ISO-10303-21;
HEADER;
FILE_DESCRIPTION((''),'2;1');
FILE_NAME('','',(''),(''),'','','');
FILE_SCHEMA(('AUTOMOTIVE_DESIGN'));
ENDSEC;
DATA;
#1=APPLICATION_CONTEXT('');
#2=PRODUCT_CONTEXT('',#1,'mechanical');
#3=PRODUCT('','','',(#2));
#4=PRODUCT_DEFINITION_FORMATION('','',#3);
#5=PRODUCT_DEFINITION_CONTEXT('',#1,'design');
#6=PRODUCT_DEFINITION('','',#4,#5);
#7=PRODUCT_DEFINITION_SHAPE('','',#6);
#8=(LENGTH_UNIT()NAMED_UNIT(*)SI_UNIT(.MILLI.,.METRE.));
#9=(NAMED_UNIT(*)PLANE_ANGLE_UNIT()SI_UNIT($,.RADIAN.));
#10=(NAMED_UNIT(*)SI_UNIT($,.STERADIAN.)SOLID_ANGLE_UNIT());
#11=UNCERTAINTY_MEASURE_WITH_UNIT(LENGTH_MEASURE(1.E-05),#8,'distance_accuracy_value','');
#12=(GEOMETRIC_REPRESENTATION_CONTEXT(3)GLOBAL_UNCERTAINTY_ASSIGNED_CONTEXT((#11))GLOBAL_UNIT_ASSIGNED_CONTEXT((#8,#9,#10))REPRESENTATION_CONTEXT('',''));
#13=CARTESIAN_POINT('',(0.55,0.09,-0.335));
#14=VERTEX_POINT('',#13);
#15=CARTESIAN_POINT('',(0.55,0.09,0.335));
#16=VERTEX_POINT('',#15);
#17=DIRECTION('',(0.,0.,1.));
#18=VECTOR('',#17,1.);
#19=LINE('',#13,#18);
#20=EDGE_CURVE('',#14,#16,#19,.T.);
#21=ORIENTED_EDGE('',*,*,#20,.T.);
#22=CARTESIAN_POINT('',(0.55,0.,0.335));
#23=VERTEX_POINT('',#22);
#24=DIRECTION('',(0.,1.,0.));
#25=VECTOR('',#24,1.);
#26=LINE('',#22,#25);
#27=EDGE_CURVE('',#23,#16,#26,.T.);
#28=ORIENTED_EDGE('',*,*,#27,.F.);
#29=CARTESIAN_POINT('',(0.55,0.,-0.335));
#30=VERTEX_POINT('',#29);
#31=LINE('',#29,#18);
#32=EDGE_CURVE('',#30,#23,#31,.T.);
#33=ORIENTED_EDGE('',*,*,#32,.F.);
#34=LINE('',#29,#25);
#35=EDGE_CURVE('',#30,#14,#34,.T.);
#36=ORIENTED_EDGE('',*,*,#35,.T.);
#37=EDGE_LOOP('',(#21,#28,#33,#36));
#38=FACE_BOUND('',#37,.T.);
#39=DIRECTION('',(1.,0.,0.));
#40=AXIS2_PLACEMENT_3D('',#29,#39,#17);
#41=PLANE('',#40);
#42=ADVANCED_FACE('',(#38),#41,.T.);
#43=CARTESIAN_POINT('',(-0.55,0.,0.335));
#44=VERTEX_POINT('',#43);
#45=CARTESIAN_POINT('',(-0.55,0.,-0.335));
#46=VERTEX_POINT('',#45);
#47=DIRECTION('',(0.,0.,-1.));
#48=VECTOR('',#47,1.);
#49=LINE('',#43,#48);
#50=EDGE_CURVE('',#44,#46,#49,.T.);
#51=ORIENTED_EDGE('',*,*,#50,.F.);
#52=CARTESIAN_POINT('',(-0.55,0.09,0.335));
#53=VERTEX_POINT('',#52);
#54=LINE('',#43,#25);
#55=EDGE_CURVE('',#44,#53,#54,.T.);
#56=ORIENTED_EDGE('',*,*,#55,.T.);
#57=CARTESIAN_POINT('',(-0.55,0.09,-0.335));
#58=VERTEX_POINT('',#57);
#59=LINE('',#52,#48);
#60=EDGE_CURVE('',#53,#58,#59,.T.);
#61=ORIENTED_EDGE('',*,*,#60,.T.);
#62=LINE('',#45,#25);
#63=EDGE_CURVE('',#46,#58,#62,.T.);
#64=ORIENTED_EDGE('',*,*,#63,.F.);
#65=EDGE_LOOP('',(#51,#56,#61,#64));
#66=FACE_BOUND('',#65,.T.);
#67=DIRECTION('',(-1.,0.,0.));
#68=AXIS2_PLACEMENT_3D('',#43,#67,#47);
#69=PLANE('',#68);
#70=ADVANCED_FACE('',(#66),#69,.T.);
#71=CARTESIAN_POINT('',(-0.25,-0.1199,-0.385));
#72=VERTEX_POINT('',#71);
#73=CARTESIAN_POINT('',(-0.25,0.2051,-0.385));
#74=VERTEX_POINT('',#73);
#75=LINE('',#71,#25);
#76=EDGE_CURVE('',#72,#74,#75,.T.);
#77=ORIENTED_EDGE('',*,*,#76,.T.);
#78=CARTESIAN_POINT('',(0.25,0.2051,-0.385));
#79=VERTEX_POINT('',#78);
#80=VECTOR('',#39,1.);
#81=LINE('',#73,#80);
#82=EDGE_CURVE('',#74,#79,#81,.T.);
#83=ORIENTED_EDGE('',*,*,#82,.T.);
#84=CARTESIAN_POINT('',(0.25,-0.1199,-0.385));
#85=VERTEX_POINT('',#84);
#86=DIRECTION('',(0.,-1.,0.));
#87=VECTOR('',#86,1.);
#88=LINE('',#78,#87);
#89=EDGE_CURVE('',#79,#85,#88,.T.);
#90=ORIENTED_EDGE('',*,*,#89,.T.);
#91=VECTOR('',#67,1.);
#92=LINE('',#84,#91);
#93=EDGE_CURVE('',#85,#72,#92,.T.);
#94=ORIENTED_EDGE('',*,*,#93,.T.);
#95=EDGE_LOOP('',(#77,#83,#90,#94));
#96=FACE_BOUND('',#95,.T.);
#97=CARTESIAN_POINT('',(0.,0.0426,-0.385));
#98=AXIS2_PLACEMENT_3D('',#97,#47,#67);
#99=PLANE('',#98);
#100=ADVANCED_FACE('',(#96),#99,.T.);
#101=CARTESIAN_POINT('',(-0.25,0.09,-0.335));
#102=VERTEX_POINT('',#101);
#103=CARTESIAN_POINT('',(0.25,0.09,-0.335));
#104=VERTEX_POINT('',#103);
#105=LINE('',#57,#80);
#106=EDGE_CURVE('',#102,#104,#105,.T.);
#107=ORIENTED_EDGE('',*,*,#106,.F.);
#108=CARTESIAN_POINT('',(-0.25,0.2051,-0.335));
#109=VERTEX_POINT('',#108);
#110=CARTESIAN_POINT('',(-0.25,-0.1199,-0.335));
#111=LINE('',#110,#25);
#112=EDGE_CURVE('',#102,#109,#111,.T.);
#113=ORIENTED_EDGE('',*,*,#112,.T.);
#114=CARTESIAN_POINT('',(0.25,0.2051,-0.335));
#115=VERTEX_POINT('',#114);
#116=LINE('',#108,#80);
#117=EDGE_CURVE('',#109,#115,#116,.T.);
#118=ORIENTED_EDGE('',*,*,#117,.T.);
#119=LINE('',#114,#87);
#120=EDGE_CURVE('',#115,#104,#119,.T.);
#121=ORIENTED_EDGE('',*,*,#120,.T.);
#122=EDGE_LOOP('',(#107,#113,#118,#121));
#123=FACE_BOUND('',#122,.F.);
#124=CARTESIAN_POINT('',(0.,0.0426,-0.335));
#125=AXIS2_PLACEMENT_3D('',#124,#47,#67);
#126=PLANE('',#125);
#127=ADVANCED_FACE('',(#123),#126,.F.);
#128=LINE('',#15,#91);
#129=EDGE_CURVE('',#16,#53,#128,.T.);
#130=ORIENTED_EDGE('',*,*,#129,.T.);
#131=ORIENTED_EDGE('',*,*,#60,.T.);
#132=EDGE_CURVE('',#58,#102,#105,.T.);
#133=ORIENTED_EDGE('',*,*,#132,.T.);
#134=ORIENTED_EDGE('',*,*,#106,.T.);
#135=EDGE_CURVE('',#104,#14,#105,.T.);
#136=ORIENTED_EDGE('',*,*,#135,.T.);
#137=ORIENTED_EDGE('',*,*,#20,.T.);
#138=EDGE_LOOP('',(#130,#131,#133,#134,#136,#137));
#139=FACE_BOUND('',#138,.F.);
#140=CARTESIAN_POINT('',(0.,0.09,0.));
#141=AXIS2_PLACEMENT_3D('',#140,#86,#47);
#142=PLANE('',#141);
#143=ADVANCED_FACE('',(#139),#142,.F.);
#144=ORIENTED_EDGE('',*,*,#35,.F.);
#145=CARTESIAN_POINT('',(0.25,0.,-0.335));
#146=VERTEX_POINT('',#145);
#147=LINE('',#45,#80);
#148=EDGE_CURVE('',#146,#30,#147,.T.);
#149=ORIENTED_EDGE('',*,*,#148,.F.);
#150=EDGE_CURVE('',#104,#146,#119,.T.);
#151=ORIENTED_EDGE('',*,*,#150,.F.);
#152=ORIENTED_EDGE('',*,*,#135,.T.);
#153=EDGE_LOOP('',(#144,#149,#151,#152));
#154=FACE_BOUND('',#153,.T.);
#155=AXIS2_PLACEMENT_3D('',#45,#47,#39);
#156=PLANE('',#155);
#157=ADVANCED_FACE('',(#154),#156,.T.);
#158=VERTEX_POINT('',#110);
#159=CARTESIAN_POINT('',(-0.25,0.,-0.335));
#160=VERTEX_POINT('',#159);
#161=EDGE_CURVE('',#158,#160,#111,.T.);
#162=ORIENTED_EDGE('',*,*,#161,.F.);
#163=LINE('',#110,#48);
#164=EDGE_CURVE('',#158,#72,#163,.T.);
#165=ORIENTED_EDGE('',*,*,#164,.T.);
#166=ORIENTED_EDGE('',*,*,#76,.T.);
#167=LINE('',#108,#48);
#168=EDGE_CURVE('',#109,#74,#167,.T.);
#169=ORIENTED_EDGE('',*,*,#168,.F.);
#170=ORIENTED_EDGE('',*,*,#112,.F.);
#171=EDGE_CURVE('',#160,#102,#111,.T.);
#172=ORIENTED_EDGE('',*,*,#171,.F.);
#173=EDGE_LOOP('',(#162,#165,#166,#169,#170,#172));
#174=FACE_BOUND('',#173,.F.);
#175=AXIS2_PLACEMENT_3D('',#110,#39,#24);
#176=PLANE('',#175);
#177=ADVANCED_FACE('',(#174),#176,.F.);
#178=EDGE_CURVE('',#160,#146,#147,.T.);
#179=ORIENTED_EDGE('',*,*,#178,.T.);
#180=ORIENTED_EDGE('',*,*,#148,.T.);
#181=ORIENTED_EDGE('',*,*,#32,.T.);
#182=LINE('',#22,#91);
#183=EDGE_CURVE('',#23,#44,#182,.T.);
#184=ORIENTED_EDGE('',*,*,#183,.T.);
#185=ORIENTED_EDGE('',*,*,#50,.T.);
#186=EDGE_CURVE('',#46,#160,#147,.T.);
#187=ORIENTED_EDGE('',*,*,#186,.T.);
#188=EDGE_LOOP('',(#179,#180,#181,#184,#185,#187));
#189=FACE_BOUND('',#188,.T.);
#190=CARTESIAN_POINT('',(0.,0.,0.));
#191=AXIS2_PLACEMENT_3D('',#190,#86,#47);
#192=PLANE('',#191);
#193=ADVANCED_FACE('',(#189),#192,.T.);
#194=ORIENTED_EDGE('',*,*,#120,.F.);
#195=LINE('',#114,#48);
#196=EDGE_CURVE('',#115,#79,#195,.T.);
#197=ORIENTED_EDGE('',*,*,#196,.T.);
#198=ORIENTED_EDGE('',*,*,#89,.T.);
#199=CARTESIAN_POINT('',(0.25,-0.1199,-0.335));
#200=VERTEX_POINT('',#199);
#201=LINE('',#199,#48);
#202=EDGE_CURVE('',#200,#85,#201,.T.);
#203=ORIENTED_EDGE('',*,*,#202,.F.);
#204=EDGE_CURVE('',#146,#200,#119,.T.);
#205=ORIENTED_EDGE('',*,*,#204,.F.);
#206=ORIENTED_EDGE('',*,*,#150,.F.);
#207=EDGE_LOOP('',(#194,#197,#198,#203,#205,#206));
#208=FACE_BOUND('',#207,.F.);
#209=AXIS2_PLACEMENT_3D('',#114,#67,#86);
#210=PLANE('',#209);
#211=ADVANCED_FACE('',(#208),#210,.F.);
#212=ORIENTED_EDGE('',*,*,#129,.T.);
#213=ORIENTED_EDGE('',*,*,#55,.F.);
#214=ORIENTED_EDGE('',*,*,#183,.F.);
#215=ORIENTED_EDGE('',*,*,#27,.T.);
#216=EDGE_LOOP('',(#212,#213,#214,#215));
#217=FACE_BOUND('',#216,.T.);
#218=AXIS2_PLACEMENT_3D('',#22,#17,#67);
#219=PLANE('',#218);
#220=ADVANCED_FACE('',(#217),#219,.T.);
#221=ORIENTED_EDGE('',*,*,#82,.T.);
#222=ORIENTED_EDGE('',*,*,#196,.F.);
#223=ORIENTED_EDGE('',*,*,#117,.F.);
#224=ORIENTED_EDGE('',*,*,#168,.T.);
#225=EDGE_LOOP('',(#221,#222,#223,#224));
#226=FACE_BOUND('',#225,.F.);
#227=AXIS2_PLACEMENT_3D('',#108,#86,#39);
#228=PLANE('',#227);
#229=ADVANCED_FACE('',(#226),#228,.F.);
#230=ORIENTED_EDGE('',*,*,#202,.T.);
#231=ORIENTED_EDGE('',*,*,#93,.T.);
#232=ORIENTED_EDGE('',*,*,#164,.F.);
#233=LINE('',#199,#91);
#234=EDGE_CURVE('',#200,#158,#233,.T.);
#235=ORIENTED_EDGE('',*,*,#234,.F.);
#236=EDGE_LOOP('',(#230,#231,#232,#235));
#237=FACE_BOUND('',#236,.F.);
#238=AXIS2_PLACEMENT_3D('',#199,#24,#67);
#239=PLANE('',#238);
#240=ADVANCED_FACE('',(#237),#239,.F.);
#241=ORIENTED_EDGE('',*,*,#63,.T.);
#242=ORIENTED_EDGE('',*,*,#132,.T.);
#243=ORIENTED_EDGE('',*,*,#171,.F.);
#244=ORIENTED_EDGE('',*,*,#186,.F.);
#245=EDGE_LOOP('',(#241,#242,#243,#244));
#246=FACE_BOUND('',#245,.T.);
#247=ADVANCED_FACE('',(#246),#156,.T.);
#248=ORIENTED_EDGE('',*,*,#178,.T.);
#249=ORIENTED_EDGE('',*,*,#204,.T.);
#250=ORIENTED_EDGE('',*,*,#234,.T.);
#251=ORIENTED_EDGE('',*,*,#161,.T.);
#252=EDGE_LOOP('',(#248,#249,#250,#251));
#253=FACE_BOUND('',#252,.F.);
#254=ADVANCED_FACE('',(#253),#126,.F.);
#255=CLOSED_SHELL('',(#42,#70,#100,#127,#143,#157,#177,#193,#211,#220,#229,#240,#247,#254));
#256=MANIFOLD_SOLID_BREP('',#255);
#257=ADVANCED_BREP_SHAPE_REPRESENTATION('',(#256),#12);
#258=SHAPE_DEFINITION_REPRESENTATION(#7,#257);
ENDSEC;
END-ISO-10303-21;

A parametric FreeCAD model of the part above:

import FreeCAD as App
import Part
import Sketcher
from FreeCAD import Vector
Q = App.Units.Quantity


def add_polygon(sketch, points):
    """Adds a closed chain of lines whose ends are joined by coincident constraints."""
    first, n = sketch.GeometryCount, len(points)
    for a, b in zip(points, points[1:] + points[:1]):
        sketch.addGeometry(Part.LineSegment(App.Vector(*a, 0), App.Vector(*b, 0)), False)
    for i in range(n):
        sketch.addConstraint(Sketcher.Constraint("Coincident", first + i, 2, first + (i + 1) % n, 1))

doc = App.newDocument("Part")
body = doc.addObject("PartDesign::Body", "Body")

sketch1 = body.newObject("Sketcher::SketchObject", "Sketch")
sketch1.AttachmentSupport = (doc.getObject("XZ_Plane"), [""])
sketch1.MapMode = "FlatFace"
add_polygon(sketch1, [(-0.55, 0.335), (-0.55, -0.335), (0.55, -0.335), (0.55, 0.335)])
sketch1.addConstraint(Sketcher.Constraint("Vertical", 0))
sketch1.addConstraint(Sketcher.Constraint("Horizontal", 1))
sketch1.addConstraint(Sketcher.Constraint("Vertical", 2))
sketch1.addConstraint(Sketcher.Constraint("Horizontal", 3))
sketch1.addConstraint(Sketcher.Constraint("Symmetric", 0, 2, 2, 2, -1, 1))
sketch1.addConstraint(Sketcher.Constraint("DistanceX", 0, 2, -1, 1, Q("0.55 mm")))
sketch1.addConstraint(Sketcher.Constraint("DistanceY", 0, 2, 0, 1, Q("0.67 mm")))
pad1 = body.newObject("PartDesign::Pad", "Pad")
pad1.Profile = sketch1
pad1.Length = 0.09
pad1.Reversed = True

sketch2 = body.newObject("Sketcher::SketchObject", "Sketch001")
sketch2.AttachmentSupport = (doc.getObject("XY_Plane"), [""])
sketch2.MapMode = "FlatFace"
sketch2.AttachmentOffset = App.Placement(Vector(0, 0, -0.335), App.Rotation())
add_polygon(sketch2, [(-0.25, -0.1199), (-0.25, 0.2051), (0.25, 0.2051), (0.25, -0.1199)])
sketch2.addConstraint(Sketcher.Constraint("Vertical", 0))
sketch2.addConstraint(Sketcher.Constraint("Horizontal", 1))
sketch2.addConstraint(Sketcher.Constraint("Vertical", 2))
sketch2.addConstraint(Sketcher.Constraint("Horizontal", 3))
sketch2.addConstraint(Sketcher.Constraint("DistanceX", 0, 2, -1, 1, Q("0.25 mm")))
sketch2.addConstraint(Sketcher.Constraint("DistanceX", -1, 1, 1, 2, Q("0.25 mm")))
sketch2.addConstraint(Sketcher.Constraint("DistanceY", 0, 1, 0, 2, Q("0.325 mm")))
sketch2.addConstraint(Sketcher.Constraint("DistanceY", 2, 2, -1, 1, Q("0.12 mm")))
pad2 = body.newObject("PartDesign::Pad", "Pad001")
pad2.Profile = sketch2
pad2.Length = 0.05
pad2.Reversed = True

doc.recompute()
